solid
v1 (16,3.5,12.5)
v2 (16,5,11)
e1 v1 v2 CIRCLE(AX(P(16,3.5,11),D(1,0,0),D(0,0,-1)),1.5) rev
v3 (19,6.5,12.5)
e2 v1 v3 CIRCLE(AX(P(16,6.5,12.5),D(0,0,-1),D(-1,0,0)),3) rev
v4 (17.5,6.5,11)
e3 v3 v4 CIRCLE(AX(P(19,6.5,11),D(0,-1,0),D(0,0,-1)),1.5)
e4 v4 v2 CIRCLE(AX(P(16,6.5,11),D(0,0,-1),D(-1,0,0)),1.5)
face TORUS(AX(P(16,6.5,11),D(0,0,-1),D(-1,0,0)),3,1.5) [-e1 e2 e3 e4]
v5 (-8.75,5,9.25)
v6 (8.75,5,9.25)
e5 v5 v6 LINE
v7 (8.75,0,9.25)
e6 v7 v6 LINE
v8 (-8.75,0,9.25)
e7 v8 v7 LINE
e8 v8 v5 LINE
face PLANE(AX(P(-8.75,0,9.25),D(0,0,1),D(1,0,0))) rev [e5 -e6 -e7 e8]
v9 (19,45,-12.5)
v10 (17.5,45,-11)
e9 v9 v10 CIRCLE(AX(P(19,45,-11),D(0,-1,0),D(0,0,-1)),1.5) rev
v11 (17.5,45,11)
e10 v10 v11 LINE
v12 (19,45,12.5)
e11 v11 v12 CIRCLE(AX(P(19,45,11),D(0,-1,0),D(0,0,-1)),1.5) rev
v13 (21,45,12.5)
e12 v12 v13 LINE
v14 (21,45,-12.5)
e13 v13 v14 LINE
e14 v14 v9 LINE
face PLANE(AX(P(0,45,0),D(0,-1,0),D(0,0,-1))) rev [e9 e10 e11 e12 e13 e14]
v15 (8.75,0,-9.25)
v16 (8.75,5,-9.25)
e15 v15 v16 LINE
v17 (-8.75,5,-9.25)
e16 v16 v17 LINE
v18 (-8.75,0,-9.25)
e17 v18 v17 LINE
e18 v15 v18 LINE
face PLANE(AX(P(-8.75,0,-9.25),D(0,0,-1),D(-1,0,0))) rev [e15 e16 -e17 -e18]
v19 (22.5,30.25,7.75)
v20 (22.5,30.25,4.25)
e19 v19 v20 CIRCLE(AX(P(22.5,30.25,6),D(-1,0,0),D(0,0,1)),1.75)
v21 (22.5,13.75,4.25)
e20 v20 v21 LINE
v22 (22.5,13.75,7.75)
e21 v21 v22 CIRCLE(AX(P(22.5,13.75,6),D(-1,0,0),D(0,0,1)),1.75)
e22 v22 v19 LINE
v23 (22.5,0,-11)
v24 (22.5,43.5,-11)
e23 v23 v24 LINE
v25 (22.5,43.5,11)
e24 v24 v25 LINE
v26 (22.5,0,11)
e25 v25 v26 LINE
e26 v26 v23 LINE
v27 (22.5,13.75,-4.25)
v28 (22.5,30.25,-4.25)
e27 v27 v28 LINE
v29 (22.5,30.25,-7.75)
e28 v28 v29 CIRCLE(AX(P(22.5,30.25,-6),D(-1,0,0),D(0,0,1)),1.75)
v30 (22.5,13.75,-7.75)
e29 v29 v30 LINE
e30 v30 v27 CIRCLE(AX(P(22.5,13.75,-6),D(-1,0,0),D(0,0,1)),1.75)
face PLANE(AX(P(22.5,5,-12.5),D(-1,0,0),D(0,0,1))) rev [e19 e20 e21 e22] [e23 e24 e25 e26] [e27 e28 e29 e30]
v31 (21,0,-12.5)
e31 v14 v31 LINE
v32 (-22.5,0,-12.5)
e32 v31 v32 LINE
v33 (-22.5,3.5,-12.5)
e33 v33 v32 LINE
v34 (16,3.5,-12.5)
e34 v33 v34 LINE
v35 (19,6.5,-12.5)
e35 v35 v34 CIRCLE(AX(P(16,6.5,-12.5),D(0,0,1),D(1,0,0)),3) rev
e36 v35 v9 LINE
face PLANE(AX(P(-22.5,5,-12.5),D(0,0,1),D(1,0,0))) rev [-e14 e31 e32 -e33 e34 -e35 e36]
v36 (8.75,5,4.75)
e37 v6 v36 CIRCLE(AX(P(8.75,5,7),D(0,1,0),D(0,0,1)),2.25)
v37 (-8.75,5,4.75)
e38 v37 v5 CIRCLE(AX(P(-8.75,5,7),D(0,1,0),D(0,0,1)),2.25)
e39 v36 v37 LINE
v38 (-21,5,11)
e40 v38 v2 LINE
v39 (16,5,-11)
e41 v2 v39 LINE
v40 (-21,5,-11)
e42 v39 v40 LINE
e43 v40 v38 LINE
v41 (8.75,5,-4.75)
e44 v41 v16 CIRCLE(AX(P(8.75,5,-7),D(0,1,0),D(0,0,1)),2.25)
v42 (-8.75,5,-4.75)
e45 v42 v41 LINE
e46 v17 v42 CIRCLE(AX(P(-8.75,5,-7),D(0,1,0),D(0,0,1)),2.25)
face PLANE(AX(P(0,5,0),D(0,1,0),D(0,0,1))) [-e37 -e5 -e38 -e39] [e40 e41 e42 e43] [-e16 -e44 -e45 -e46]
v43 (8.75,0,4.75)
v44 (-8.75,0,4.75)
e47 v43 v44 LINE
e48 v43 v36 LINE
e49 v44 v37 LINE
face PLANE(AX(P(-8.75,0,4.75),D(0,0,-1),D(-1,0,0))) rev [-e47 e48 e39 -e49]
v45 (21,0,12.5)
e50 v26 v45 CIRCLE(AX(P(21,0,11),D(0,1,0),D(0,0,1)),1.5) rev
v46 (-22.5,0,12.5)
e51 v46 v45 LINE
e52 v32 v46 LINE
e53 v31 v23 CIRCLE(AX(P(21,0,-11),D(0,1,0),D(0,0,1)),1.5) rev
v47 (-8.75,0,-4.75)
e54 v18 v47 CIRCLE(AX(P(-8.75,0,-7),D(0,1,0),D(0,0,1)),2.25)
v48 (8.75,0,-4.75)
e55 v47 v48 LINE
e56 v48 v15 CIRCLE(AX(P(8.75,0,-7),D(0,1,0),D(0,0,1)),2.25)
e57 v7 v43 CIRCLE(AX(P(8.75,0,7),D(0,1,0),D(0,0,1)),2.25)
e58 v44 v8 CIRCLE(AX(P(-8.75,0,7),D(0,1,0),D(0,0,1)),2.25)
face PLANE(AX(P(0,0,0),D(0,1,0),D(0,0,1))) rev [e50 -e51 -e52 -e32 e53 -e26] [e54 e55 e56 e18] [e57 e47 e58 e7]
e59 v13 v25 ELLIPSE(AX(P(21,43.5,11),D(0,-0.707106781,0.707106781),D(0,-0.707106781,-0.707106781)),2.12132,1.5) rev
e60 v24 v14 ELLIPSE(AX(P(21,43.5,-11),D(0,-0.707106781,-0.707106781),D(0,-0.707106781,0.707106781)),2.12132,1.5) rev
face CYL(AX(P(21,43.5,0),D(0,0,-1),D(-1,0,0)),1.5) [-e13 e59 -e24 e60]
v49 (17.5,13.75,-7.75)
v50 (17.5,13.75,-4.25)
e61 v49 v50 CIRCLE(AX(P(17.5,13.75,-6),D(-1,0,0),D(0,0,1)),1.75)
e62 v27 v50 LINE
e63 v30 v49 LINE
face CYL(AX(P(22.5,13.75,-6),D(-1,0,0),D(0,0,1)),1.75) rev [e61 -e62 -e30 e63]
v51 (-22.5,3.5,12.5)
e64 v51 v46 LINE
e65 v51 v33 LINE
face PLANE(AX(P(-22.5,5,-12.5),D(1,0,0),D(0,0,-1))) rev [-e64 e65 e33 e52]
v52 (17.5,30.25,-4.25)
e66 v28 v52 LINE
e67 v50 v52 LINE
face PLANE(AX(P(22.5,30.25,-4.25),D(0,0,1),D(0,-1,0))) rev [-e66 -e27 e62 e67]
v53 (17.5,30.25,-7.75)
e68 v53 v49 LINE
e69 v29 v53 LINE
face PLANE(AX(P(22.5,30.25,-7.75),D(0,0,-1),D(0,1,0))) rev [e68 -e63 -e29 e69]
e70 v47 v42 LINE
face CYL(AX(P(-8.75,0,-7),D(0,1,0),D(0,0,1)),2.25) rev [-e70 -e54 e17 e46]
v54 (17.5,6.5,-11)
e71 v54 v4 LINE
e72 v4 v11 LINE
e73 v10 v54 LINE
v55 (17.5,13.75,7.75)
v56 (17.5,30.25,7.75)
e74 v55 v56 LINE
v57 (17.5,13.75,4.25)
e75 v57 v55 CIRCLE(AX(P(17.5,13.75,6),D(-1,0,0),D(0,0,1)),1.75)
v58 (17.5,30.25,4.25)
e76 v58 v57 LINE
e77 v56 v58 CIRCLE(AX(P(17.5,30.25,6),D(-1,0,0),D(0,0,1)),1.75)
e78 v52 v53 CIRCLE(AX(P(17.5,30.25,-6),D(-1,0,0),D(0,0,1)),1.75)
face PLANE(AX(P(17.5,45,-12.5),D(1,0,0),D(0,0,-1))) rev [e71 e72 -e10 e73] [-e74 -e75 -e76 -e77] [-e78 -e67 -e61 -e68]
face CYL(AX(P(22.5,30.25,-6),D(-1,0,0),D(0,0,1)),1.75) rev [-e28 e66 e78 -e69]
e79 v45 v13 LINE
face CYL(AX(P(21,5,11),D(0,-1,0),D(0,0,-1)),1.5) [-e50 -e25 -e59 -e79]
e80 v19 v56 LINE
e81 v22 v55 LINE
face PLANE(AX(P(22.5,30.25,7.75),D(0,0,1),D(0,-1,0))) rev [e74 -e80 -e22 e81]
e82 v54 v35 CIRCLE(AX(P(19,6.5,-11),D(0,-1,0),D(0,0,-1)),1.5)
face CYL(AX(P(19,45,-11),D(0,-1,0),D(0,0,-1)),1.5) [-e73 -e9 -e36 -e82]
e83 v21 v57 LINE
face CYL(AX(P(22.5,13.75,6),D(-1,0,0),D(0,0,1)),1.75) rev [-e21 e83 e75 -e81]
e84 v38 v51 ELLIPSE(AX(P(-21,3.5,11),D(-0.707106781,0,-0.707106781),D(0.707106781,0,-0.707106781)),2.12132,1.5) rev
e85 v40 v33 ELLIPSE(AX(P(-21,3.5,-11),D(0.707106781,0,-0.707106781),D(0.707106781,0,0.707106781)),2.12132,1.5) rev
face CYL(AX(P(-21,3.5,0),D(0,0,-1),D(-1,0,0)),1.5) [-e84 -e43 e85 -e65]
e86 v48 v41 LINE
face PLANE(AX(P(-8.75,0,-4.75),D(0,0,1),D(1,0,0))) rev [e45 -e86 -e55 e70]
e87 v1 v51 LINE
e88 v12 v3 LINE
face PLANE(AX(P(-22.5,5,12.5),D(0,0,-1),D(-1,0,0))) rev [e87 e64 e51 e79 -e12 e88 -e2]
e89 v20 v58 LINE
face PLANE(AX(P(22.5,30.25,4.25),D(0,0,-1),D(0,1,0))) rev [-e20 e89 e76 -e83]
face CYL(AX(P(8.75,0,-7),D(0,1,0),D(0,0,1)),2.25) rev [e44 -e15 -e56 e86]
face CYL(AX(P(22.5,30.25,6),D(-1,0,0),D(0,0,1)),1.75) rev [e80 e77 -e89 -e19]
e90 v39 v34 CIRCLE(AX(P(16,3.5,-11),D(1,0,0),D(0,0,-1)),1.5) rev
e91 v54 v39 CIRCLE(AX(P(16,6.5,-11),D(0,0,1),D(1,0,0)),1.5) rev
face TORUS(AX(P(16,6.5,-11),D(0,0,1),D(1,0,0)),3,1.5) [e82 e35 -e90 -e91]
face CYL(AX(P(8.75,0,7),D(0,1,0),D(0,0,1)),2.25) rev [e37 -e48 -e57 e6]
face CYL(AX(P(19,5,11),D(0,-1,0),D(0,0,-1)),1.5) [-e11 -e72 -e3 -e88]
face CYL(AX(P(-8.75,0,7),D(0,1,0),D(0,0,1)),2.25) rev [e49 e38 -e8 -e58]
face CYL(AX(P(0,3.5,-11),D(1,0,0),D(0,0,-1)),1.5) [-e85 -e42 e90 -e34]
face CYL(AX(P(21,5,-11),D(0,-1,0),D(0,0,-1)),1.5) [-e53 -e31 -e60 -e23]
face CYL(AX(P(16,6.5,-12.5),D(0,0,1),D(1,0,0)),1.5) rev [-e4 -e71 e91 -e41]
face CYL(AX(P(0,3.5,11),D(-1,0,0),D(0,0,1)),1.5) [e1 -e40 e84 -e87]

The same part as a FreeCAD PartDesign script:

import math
import FreeCAD as App
import Part
import Sketcher
from FreeCAD import Vector


def edges_at(feature, points):
    """Names of the edges that pass closest to the given points."""
    edges = feature.Shape.Edges
    near = lambda p: min(range(len(edges)), key=lambda i: edges[i].distToShape(Part.Vertex(*p))[0])
    return sorted({f"Edge{near(p) + 1}" for p in points})

doc = App.newDocument("Part")
body = doc.addObject("PartDesign::Body", "Body")

sketch1 = body.newObject("Sketcher::SketchObject", "Sketch")
sketch1.AttachmentSupport = (doc.getObject("XZ_Plane"), [""])
sketch1.MapMode = "FlatFace"
sketch1.addGeometry([
    Part.LineSegment(Vector(-22, -12, 0), Vector(-22, 12, 0)),
    Part.LineSegment(Vector(-22, 12, 0), Vector(22, 12, 0)),
    Part.LineSegment(Vector(22, 12, 0), Vector(22, -12, 0)),
    Part.LineSegment(Vector(22, -12, 0), Vector(-22, -12, 0)),
], False)
sketch1.addConstraint([
    Sketcher.Constraint("Coincident", 0, 2, 1, 1),
    Sketcher.Constraint("Coincident", 1, 2, 2, 1),
    Sketcher.Constraint("Coincident", 2, 2, 3, 1),
    Sketcher.Constraint("Coincident", 3, 2, 0, 1),
    Sketcher.Constraint("Vertical", 0),
    Sketcher.Constraint("Horizontal", 1),
    Sketcher.Constraint("Vertical", 2),
    Sketcher.Constraint("Horizontal", 3),
    Sketcher.Constraint("Symmetric", 0, 2, 2, 2, -1, 1),
    Sketcher.Constraint("DistanceX", 1, 1, 1, 2, 45.0),
    Sketcher.Constraint("DistanceY", 0, 1, 0, 2, 25.0),
])
pad1 = body.newObject("PartDesign::Pad", "Pad")
pad1.Profile = sketch1
pad1.Length = 5
pad1.Reversed = True

sketch2 = body.newObject("Sketcher::SketchObject", "Sketch001")
sketch2.AttachmentSupport = (doc.getObject("XZ_Plane"), [""])
sketch2.MapMode = "FlatFace"
sketch2.AttachmentOffset = App.Placement(Vector(0, 0, -5), App.Rotation())
sketch2.addGeometry([
    Part.LineSegment(Vector(8.8, -9.2, 0), Vector(-8.8, -9.2, 0)),
    Part.ArcOfCircle(Part.Circle(Vector(-8.8, -7, 0), Vector(0, 0, 1), 2.2), math.radians(90), math.radians(270)),
    Part.LineSegment(Vector(-8.8, -4.8, 0), Vector(8.8, -4.8, 0)),
    Part.ArcOfCircle(Part.Circle(Vector(8.8, -7, 0), Vector(0, 0, 1), 2.2), math.radians(-90), math.radians(90)),
    Part.LineSegment(Vector(8.8, 4.8, 0), Vector(-8.8, 4.8, 0)),
    Part.ArcOfCircle(Part.Circle(Vector(-8.8, 7, 0), Vector(0, 0, 1), 2.2), math.radians(90), math.radians(270)),
    Part.LineSegment(Vector(-8.8, 9.2, 0), Vector(8.8, 9.2, 0)),
    Part.ArcOfCircle(Part.Circle(Vector(8.8, 7, 0), Vector(0, 0, 1), 2.2), math.radians(-90), math.radians(90)),
], False)
sketch2.addConstraint([
    Sketcher.Constraint("Tangent", 0, 2, 1, 2),
    Sketcher.Constraint("Tangent", 1, 1, 2, 1),
    Sketcher.Constraint("Tangent", 2, 2, 3, 2),
    Sketcher.Constraint("Tangent", 3, 1, 0, 1),
    Sketcher.Constraint("Tangent", 4, 2, 5, 2),
    Sketcher.Constraint("Tangent", 5, 1, 6, 1),
    Sketcher.Constraint("Tangent", 6, 2, 7, 2),
    Sketcher.Constraint("Tangent", 7, 1, 4, 1),
    Sketcher.Constraint("Horizontal", 0),
    Sketcher.Constraint("Horizontal", 2),
    Sketcher.Constraint("Horizontal", 4),
    Sketcher.Constraint("Horizontal", 6),
    Sketcher.Constraint("Equal", 3, 5),
    Sketcher.Constraint("Symmetric", 3, 3, 5, 3, -1, 1),
    Sketcher.Constraint("Vertical", 1, 3, 5, 3),
    Sketcher.Constraint("Vertical", 3, 3, 7, 3),
    Sketcher.Constraint("Radius", 1, 2.25),
    Sketcher.Constraint("DistanceX", 0, 2, 0, 1, 17.5),
    Sketcher.Constraint("DistanceY", 1, 3, -1, 1, 7.0),
])
pocket1 = body.newObject("PartDesign::Pocket", "Pocket")
pocket1.Profile = sketch2
pocket1.Type = "ThroughAll"
pocket1.Reversed = True

sketch3 = body.newObject("Sketcher::SketchObject", "Sketch002")
sketch3.AttachmentSupport = (doc.getObject("XZ_Plane"), [""])
sketch3.MapMode = "FlatFace"
sketch3.AttachmentOffset = App.Placement(Vector(0, 0, -5), App.Rotation())
sketch3.addGeometry([
    Part.LineSegment(Vector(18, -12, 0), Vector(18, 12, 0)),
    Part.LineSegment(Vector(18, 12, 0), Vector(22, 12, 0)),
    Part.LineSegment(Vector(22, 12, 0), Vector(22, -12, 0)),
    Part.LineSegment(Vector(22, -12, 0), Vector(18, -12, 0)),
], False)
sketch3.addConstraint([
    Sketcher.Constraint("Coincident", 0, 2, 1, 1),
    Sketcher.Constraint("Coincident", 1, 2, 2, 1),
    Sketcher.Constraint("Coincident", 2, 2, 3, 1),
    Sketcher.Constraint("Coincident", 3, 2, 0, 1),
    Sketcher.Constraint("Vertical", 0),
    Sketcher.Constraint("Horizontal", 1),
    Sketcher.Constraint("Vertical", 2),
    Sketcher.Constraint("Horizontal", 3),
    Sketcher.Constraint("DistanceX", 1, 1, 1, 2, 5.0),
    Sketcher.Constraint("DistanceY", 0, 1, 0, 2, 25.0),
    Sketcher.Constraint("DistanceX", -1, 1, 0, 2, 17.5),
    Sketcher.Constraint("DistanceY", -1, 1, 0, 2, 12.5),
])
pad2 = body.newObject("PartDesign::Pad", "Pad001")
pad2.Profile = sketch3
pad2.Length = 40
pad2.Reversed = True

sketch4 = body.newObject("Sketcher::SketchObject", "Sketch003")
sketch4.AttachmentSupport = (doc.getObject("YZ_Plane"), [""])
sketch4.MapMode = "FlatFace"
sketch4.AttachmentOffset = App.Placement(Vector(0, 0, 17.5), App.Rotation())
sketch4.addGeometry([
    Part.LineSegment(Vector(13.8, -4.2, 0), Vector(30.2, -4.2, 0)),
    Part.ArcOfCircle(Part.Circle(Vector(30.2, -6, 0), Vector(0, 0, 1), 1.8), math.radians(-90), math.radians(90)),
    Part.LineSegment(Vector(30.2, -7.8, 0), Vector(13.8, -7.8, 0)),
    Part.ArcOfCircle(Part.Circle(Vector(13.8, -6, 0), Vector(0, 0, 1), 1.8), math.radians(90), math.radians(270)),
    Part.LineSegment(Vector(13.8, 7.8, 0), Vector(30.2, 7.8, 0)),
    Part.ArcOfCircle(Part.Circle(Vector(30.2, 6, 0), Vector(0, 0, 1), 1.8), math.radians(-90), math.radians(90)),
    Part.LineSegment(Vector(30.2, 4.2, 0), Vector(13.8, 4.2, 0)),
    Part.ArcOfCircle(Part.Circle(Vector(13.8, 6, 0), Vector(0, 0, 1), 1.8), math.radians(90), math.radians(270)),
], False)
sketch4.addConstraint([
    Sketcher.Constraint("Tangent", 0, 2, 1, 2),
    Sketcher.Constraint("Tangent", 1, 1, 2, 1),
    Sketcher.Constraint("Tangent", 2, 2, 3, 2),
    Sketcher.Constraint("Tangent", 3, 1, 0, 1),
    Sketcher.Constraint("Tangent", 4, 2, 5, 2),
    Sketcher.Constraint("Tangent", 5, 1, 6, 1),
    Sketcher.Constraint("Tangent", 6, 2, 7, 2),
    Sketcher.Constraint("Tangent", 7, 1, 4, 1),
    Sketcher.Constraint("Horizontal", 0),
    Sketcher.Constraint("Horizontal", 2),
    Sketcher.Constraint("Horizontal", 4),
    Sketcher.Constraint("Horizontal", 6),
    Sketcher.Constraint("Equal", 3, 5),
    Sketcher.Constraint("Symmetric", 1, 3, 5, 3, -1),
    Sketcher.Constraint("Vertical", 3, 3, 7, 3),
    Sketcher.Constraint("Radius", 1, 1.75),
    Sketcher.Constraint("DistanceX", 0, 1, 0, 2, 16.5),
    Sketcher.Constraint("DistanceY", 1, 3, -1, 1, 6.0),
    Sketcher.Constraint("DistanceX", -1, 1, 1, 3, 30.25),
])
pocket2 = body.newObject("PartDesign::Pocket", "Pocket001")
pocket2.Profile = sketch4
pocket2.Type = "ThroughAll"
pocket2.Reversed = True
doc.recompute()

fillet = body.newObject("PartDesign::Fillet", "Fillet")
fillet.Base = (pocket2, edges_at(pocket2, [
    (-22.5, 5, 0),
    (-2.5, 5, 12.5),
    (-2.5, 5, -12.5),
    (17.5, 5, 0),
    (17.5, 25, -12.5),
    (17.5, 25, 12.5),
    (22.5, 45, 0),
    (22.5, 22.5, 12.5),
    (22.5, 22.5, -12.5),
]))
fillet.Radius = 1.5

doc.recompute()
